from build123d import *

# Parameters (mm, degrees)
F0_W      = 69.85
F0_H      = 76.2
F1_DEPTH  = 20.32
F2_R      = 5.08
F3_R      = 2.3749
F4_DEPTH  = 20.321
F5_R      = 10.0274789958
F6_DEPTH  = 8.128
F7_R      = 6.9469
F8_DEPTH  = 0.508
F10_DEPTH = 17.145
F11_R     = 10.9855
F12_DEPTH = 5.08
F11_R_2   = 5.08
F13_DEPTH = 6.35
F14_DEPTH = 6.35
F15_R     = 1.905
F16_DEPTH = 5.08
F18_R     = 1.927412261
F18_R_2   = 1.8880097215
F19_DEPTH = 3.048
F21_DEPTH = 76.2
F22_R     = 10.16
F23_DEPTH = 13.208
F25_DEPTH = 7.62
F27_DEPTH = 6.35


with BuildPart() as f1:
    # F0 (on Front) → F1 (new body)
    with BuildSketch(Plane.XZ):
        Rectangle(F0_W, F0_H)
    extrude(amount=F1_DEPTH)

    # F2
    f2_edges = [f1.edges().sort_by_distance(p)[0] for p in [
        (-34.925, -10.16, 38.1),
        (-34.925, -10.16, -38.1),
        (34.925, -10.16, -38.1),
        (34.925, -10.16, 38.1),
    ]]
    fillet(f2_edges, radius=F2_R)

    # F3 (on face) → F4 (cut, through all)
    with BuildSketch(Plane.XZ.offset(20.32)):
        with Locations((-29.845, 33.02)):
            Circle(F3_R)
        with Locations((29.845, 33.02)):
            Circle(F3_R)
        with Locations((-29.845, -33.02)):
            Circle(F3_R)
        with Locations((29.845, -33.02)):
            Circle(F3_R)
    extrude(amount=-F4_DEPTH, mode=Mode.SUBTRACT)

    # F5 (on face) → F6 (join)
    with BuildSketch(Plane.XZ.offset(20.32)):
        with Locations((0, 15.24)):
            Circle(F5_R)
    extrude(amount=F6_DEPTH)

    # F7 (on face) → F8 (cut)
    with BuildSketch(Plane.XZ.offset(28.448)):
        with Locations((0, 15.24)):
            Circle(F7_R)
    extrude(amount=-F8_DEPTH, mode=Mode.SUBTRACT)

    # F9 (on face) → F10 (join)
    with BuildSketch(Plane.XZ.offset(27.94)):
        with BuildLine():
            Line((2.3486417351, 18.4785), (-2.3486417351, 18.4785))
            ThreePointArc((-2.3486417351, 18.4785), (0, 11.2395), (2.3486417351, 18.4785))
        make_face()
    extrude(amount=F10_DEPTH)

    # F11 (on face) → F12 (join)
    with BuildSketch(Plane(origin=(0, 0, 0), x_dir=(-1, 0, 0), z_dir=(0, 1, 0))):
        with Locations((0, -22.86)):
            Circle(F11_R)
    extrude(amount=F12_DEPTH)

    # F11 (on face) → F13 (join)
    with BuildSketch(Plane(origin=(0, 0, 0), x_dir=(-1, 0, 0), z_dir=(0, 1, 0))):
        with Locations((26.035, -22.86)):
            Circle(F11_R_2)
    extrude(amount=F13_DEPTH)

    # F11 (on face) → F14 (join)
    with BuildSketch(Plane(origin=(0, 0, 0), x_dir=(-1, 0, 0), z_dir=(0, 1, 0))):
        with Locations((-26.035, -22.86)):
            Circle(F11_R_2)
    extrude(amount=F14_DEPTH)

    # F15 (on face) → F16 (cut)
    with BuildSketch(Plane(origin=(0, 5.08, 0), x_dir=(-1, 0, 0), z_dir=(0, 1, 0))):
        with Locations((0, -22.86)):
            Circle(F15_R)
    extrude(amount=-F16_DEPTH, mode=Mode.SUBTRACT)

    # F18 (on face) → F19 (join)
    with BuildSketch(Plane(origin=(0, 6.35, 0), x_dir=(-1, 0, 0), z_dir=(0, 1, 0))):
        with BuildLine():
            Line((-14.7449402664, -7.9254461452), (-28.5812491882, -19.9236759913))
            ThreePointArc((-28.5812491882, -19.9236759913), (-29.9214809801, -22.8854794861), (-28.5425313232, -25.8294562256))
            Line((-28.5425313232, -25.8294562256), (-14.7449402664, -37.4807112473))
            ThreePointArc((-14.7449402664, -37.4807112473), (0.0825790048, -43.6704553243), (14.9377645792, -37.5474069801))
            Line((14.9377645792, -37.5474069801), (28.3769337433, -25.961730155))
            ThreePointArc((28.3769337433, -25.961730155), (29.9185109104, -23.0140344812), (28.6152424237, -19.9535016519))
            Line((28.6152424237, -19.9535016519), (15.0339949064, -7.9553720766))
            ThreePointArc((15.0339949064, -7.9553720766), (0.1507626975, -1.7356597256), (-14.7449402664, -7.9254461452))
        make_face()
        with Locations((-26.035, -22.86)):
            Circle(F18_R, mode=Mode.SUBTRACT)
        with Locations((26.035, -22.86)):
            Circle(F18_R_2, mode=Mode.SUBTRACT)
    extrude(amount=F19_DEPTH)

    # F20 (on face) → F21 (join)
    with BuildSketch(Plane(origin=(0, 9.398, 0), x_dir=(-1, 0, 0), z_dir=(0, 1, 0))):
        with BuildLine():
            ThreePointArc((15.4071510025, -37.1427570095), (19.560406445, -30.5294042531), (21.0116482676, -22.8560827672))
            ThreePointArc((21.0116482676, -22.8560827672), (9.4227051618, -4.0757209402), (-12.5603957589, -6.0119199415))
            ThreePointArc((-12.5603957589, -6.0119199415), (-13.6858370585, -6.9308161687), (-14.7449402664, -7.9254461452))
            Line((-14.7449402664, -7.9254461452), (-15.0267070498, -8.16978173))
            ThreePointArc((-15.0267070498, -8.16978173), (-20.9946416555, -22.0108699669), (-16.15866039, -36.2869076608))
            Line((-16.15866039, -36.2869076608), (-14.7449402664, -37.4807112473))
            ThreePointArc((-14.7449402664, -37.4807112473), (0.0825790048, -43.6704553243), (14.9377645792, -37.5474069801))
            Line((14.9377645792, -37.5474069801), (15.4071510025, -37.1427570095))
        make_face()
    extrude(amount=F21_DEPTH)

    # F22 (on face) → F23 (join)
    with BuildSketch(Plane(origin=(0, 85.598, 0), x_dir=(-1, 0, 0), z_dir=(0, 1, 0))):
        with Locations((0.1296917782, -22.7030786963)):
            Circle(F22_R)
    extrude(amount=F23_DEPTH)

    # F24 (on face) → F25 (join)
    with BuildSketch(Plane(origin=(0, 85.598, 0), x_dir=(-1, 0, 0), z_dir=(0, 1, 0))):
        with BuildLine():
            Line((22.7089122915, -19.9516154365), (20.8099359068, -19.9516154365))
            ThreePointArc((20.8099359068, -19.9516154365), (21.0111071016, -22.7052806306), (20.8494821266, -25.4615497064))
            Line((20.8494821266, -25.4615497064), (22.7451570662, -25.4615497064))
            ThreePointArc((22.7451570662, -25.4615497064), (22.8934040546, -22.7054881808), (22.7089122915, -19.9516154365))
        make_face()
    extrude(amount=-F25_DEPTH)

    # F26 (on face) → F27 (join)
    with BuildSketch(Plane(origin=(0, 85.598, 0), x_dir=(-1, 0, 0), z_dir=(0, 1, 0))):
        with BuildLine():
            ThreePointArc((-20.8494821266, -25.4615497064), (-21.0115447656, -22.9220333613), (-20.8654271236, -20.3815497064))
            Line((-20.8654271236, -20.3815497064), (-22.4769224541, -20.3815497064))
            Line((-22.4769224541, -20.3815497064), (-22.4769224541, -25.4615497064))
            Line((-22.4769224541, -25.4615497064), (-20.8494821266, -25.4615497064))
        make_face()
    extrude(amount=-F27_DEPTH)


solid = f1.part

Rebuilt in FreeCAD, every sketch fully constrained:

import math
import FreeCAD as App
import Part
import Sketcher
Q = App.Units.Quantity


def edges_at(feature, points):
    """Names of the edges that pass closest to the given points."""
    edges = feature.Shape.Edges
    near = lambda p: min(range(len(edges)), key=lambda i: edges[i].distToShape(Part.Vertex(*p))[0])
    return sorted({f"Edge{near(p) + 1}" for p in points})

doc = App.newDocument("Part")
body = doc.addObject("PartDesign::Body", "Body")

sketch1 = body.newObject("Sketcher::SketchObject", "Sketch")
sketch1.AttachmentSupport = (doc.getObject("XZ_Plane"), [""])
sketch1.MapMode = "FlatFace"
sketch1.addGeometry(Part.LineSegment(App.Vector(-35, 38, 0), App.Vector(-35, -38, 0)), False)
sketch1.addGeometry(Part.LineSegment(App.Vector(-35, -38, 0), App.Vector(35, -38, 0)), False)
sketch1.addGeometry(Part.LineSegment(App.Vector(35, -38, 0), App.Vector(35, 38, 0)), False)
sketch1.addGeometry(Part.LineSegment(App.Vector(35, 38, 0), App.Vector(-35, 38, 0)), False)
sketch1.addConstraint(Sketcher.Constraint("Coincident", 0, 2, 1, 1))
sketch1.addConstraint(Sketcher.Constraint("Coincident", 1, 2, 2, 1))
sketch1.addConstraint(Sketcher.Constraint("Coincident", 2, 2, 3, 1))
sketch1.addConstraint(Sketcher.Constraint("Coincident", 3, 2, 0, 1))
sketch1.addConstraint(Sketcher.Constraint("Vertical", 0))
sketch1.addConstraint(Sketcher.Constraint("Horizontal", 1))
sketch1.addConstraint(Sketcher.Constraint("Vertical", 2))
sketch1.addConstraint(Sketcher.Constraint("Horizontal", 3))
sketch1.addConstraint(Sketcher.Constraint("Symmetric", 0, 2, 2, 2, -1, 1))
sketch1.addConstraint(Sketcher.Constraint("DistanceY", 0, 2, 0, 1, Q("3 in")))
sketch1.addConstraint(Sketcher.Constraint("DistanceX", 1, 1, 1, 2, Q("2.75 in")))
pad1 = body.newObject("PartDesign::Pad", "Pad")
pad1.Profile = sketch1
pad1.Length = Q("0.8 in")
doc.recompute()

fillet = body.newObject("PartDesign::Fillet", "Fillet")
fillet.Base = (pad1, edges_at(pad1, [
    (-34.925, -10.16, 38.1),
    (-34.925, -10.16, -38.1),
    (34.925, -10.16, -38.1),
    (34.925, -10.16, 38.1),
]))
fillet.Radius = Q("0.2 in")

sketch2 = body.newObject("Sketcher::SketchObject", "Sketch001")
sketch2.AttachmentSupport = (doc.getObject("XZ_Plane"), [""])
sketch2.MapMode = "FlatFace"
sketch2.AttachmentOffset = App.Placement(App.Vector(0, 0, 0.8 * 25.4), App.Rotation())
sketch2.addGeometry(Part.Circle(App.Vector(-29.8, 33, 0), App.Vector(0, 0, 1), 2.4), False)
sketch2.addGeometry(Part.Circle(App.Vector(29.8, 33, 0), App.Vector(0, 0, 1), 2.4), False)
sketch2.addGeometry(Part.Circle(App.Vector(-29.8, -33, 0), App.Vector(0, 0, 1), 2.4), False)
sketch2.addGeometry(Part.Circle(App.Vector(29.8, -33, 0), App.Vector(0, 0, 1), 2.4), False)
sketch2.addConstraint(Sketcher.Constraint("Equal", 0, 1))
sketch2.addConstraint(Sketcher.Constraint("Equal", 1, 2))
sketch2.addConstraint(Sketcher.Constraint("Equal", 2, 3))
sketch2.addConstraint(Sketcher.Constraint("Symmetric", 1, 3, 2, 3, -1, 1))
sketch2.addConstraint(Sketcher.Constraint("Symmetric", 0, 3, 3, 3, -1, 1))
sketch2.addConstraint(Sketcher.Constraint("Symmetric", 0, 3, 1, 3, -2))
sketch2.addConstraint(Sketcher.Constraint("Diameter", 0, Q("0.187 in")))
sketch2.addConstraint(Sketcher.Constraint("DistanceY", -1, 1, 0, 3, Q("1.3 in")))
sketch2.addConstraint(Sketcher.Constraint("DistanceX", 0, 3, 1, 3, Q("2.35 in")))
pocket1 = body.newObject("PartDesign::Pocket", "Pocket")
pocket1.Profile = sketch2
pocket1.Type = "ThroughAll"

sketch3 = body.newObject("Sketcher::SketchObject", "Sketch002")
sketch3.AttachmentSupport = (doc.getObject("XZ_Plane"), [""])
sketch3.MapMode = "FlatFace"
sketch3.AttachmentOffset = App.Placement(App.Vector(0, 0, 0.8 * 25.4), App.Rotation())
sketch3.addGeometry(Part.Circle(App.Vector(0, 15, 0), App.Vector(0, 0, 1), 10), False)
sketch3.addConstraint(Sketcher.Constraint("PointOnObject", 0, 3, -2))
sketch3.addConstraint(Sketcher.Constraint("DistanceY", -1, 1, 0, 3, Q("0.6 in")))
sketch3.addConstraint(Sketcher.Constraint("Diameter", 0, 20.054958))
pad2 = body.newObject("PartDesign::Pad", "Pad001")
pad2.Profile = sketch3
pad2.Length = Q("0.32 in")

sketch4 = body.newObject("Sketcher::SketchObject", "Sketch003")
sketch4.AttachmentSupport = (doc.getObject("XZ_Plane"), [""])
sketch4.MapMode = "FlatFace"
sketch4.AttachmentOffset = App.Placement(App.Vector(0, 0, 1.12 * 25.4), App.Rotation())
sketch4.addGeometry(Part.Circle(App.Vector(0, 15, 0), App.Vector(0, 0, 1), 7), False)
sketch4.addConstraint(Sketcher.Constraint("PointOnObject", 0, 3, -2))
sketch4.addConstraint(Sketcher.Constraint("Diameter", 0, Q("0.547 in")))
sketch4.addConstraint(Sketcher.Constraint("DistanceY", -1, 1, 0, 3, Q("0.6 in")))
pocket2 = body.newObject("PartDesign::Pocket", "Pocket001")
pocket2.Profile = sketch4
pocket2.Length = Q("0.02 in")

sketch5 = body.newObject("Sketcher::SketchObject", "Sketch004")
sketch5.AttachmentSupport = (doc.getObject("XZ_Plane"), [""])
sketch5.MapMode = "FlatFace"
sketch5.AttachmentOffset = App.Placement(App.Vector(0, 0, 1.1 * 25.4), App.Rotation())
sketch5.addGeometry(Part.LineSegment(App.Vector(2.3, 18.5, 0), App.Vector(-2.3, 18.5, 0)), False)
sketch5.addGeometry(Part.ArcOfCircle(Part.Circle(App.Vector(0, 15.2, 0), App.Vector(0, 0, 1), 4), math.radians(126), math.radians(414)), False)
sketch5.addConstraint(Sketcher.Constraint("Coincident", 0, 1, 1, 2))
sketch5.addConstraint(Sketcher.Constraint("Coincident", 1, 1, 0, 2))
sketch5.addConstraint(Sketcher.Constraint("Horizontal", 0))
sketch5.addConstraint(Sketcher.Constraint("PointOnObject", 1, 3, -2))
sketch5.addConstraint(Sketcher.Constraint("DistanceY", -1, 1, 1, 3, Q("0.6 in")))
sketch5.addConstraint(Sketcher.Constraint("Radius", 1, Q("0.1575 in")))
sketch5.addConstraint(Sketcher.Constraint("DistanceY", -1, 1, 0, 1, Q("0.7275 in")))
pad3 = body.newObject("PartDesign::Pad", "Pad002")
pad3.Profile = sketch5
pad3.Length = Q("0.675 in")

sketch6 = body.newObject("Sketcher::SketchObject", "Sketch005")
sketch6.AttachmentSupport = (doc.getObject("XZ_Plane"), [""])
sketch6.MapMode = "FlatFace"
sketch6.addGeometry(Part.Circle(App.Vector(0, -23, 0), App.Vector(0, 0, 1), 11), False)
sketch6.addConstraint(Sketcher.Constraint("PointOnObject", 0, 3, -2))
sketch6.addConstraint(Sketcher.Constraint("Diameter", 0, Q("0.865 in")))
sketch6.addConstraint(Sketcher.Constraint("DistanceY", 0, 3, -1, 1, Q("0.9 in")))
pad4 = body.newObject("PartDesign::Pad", "Pad003")
pad4.Profile = sketch6
pad4.Length = Q("0.2 in")
pad4.Reversed = True

sketch7 = body.newObject("Sketcher::SketchObject", "Sketch006")
sketch7.AttachmentSupport = (doc.getObject("XZ_Plane"), [""])
sketch7.MapMode = "FlatFace"
sketch7.addGeometry(Part.Circle(App.Vector(-26, -23, 0), App.Vector(0, 0, 1), 5), False)
sketch7.addConstraint(Sketcher.Constraint("Diameter", 0, Q("0.4 in")))
sketch7.addConstraint(Sketcher.Constraint("DistanceY", 0, 3, -1, 1, Q("0.9 in")))
sketch7.addConstraint(Sketcher.Constraint("DistanceX", 0, 3, -1, 1, Q("1.025 in")))
pad5 = body.newObject("PartDesign::Pad", "Pad004")
pad5.Profile = sketch7
pad5.Length = Q("0.25 in")
pad5.Reversed = True

sketch8 = body.newObject("Sketcher::SketchObject", "Sketch007")
sketch8.AttachmentSupport = (doc.getObject("XZ_Plane"), [""])
sketch8.MapMode = "FlatFace"
sketch8.addGeometry(Part.Circle(App.Vector(26, -23, 0), App.Vector(0, 0, 1), 5), False)
sketch8.addConstraint(Sketcher.Constraint("Diameter", 0, Q("0.4 in")))
sketch8.addConstraint(Sketcher.Constraint("DistanceY", 0, 3, -1, 1, Q("0.9 in")))
sketch8.addConstraint(Sketcher.Constraint("DistanceX", -1, 1, 0, 3, Q("1.025 in")))
pad6 = body.newObject("PartDesign::Pad", "Pad005")
pad6.Profile = sketch8
pad6.Length = Q("0.25 in")
pad6.Reversed = True

sketch9 = body.newObject("Sketcher::SketchObject", "Sketch008")
sketch9.AttachmentSupport = (doc.getObject("XZ_Plane"), [""])
sketch9.MapMode = "FlatFace"
sketch9.AttachmentOffset = App.Placement(App.Vector(0, 0, -0.2 * 25.4), App.Rotation())
sketch9.addGeometry(Part.Circle(App.Vector(0, -22.9, 0), App.Vector(0, 0, 1), 1.9), False)
sketch9.addConstraint(Sketcher.Constraint("PointOnObject", 0, 3, -2))
sketch9.addConstraint(Sketcher.Constraint("Diameter", 0, Q("0.15 in")))
sketch9.addConstraint(Sketcher.Constraint("DistanceY", 0, 3, -1, 1, Q("0.9 in")))
pocket3 = body.newObject("PartDesign::Pocket", "Pocket002")
pocket3.Profile = sketch9
pocket3.Length = Q("0.2 in")
pocket3.Reversed = True

sketch10 = body.newObject("Sketcher::SketchObject", "Sketch009")
sketch10.AttachmentSupport = (doc.getObject("XZ_Plane"), [""])
sketch10.MapMode = "FlatFace"
sketch10.AttachmentOffset = App.Placement(App.Vector(0, 0, -0.25 * 25.4), App.Rotation())
sketch10.addGeometry(Part.LineSegment(App.Vector(14.7, -7.9, 0), App.Vector(28.6, -19.9, 0)), False)
sketch10.addGeometry(Part.ArcOfCircle(Part.Circle(App.Vector(26, -22.9, 0), App.Vector(0, 0, 1), 3.9), math.radians(-50), math.radians(49)), False)
sketch10.addGeometry(Part.LineSegment(App.Vector(28.5, -25.8, 0), App.Vector(14.7, -37.5, 0)), False)
sketch10.addGeometry(Part.ArcOfCircle(Part.Circle(App.Vector(-0.1, -22.7, 0), App.Vector(0, 0, 1), 21), math.radians(-135), math.radians(-45)), False)
sketch10.addGeometry(Part.LineSegment(App.Vector(-14.9, -37.5, 0), App.Vector(-28.4, -26, 0)), False)
sketch10.addGeometry(Part.ArcOfCircle(Part.Circle(App.Vector(-26, -22.9, 0), App.Vector(0, 0, 1), 3.9), math.radians(132), math.radians(233)), False)
sketch10.addGeometry(Part.LineSegment(App.Vector(-28.6, -20, 0), App.Vector(-15, -8, 0)), False)
sketch10.addGeometry(Part.ArcOfCircle(Part.Circle(App.Vector(-0.1, -22.7, 0), App.Vector(0, 0, 1), 21), math.radians(45), math.radians(135)), False)
sketch10.addGeometry(Part.Circle(App.Vector(26, -22.9, 0), App.Vector(0, 0, 1), 1.9), False)
sketch10.addGeometry(Part.Circle(App.Vector(-26, -22.9, 0), App.Vector(0, 0, 1), 1.9), False)
sketch10.addConstraint(Sketcher.Constraint("Tangent", 0, 2, 1, 2))
sketch10.addConstraint(Sketcher.Constraint("Tangent", 1, 1, 2, 1))
sketch10.addConstraint(Sketcher.Constraint("Coincident", 2, 2, 3, 2))
sketch10.addConstraint(Sketcher.Constraint("Coincident", 3, 1, 4, 1))
sketch10.addConstraint(Sketcher.Constraint("Coincident", 4, 2, 5, 2))
sketch10.addConstraint(Sketcher.Constraint("Coincident", 5, 1, 6, 1))
sketch10.addConstraint(Sketcher.Constraint("Coincident", 6, 2, 7, 2))
sketch10.addConstraint(Sketcher.Constraint("Coincident", 7, 1, 0, 1))
sketch10.addConstraint(Sketcher.Constraint("Coincident", 7, 3, 3, 3))
sketch10.addConstraint(Sketcher.Constraint("Coincident", 8, 3, 1, 3))
sketch10.addConstraint(Sketcher.Constraint("Coincident", 9, 3, 5, 3))
sketch10.addConstraint(Sketcher.Constraint("Equal", 1, 5))
sketch10.addConstraint(Sketcher.Constraint("Equal", 3, 7))
sketch10.addConstraint(Sketcher.Constraint("Symmetric", 1, 3, 5, 3, -2))
sketch10.addConstraint(Sketcher.Constraint("Vertical", 2, 2, 7, 1))
sketch10.addConstraint(Sketcher.Constraint("DistanceY", 1, 3, -1, 1, Q("0.9 in")))
sketch10.addConstraint(Sketcher.Constraint("DistanceX", 5, 3, 1, 3, Q("2.05 in")))
sketch10.addConstraint(Sketcher.Constraint("Diameter", 9, 3.776019))
sketch10.addConstraint(Sketcher.Constraint("Radius", 3, 20.96743))
sketch10.addConstraint(Sketcher.Constraint("Diameter", 8, 3.854825))
sketch10.addConstraint(Sketcher.Constraint("Radius", 1, 3.886564))
sketch10.addConstraint(Sketcher.Constraint("DistanceY", 5, 1, -1, 1, 19.953502))
sketch10.addConstraint(Sketcher.Constraint("Distance", 2, 18.058939))
sketch10.addConstraint(Sketcher.Constraint("Distance", 4, 17.743708))
sketch10.addConstraint(Sketcher.Constraint("Distance", 6, 18.121959))
sketch10.addConstraint(Sketcher.Constraint("DistanceX", 3, 3, -1, 1, 0.129692))
sketch10.addConstraint(Sketcher.Constraint("DistanceY", 3, 3, -1, 1, 22.703079))
sketch10.addConstraint(Sketcher.Constraint("DistanceY", 4, 2, -1, 1, 25.96173))
pad7 = body.newObject("PartDesign::Pad", "Pad006")
pad7.Profile = sketch10
pad7.Length = Q("0.12 in")
pad7.Reversed = True

sketch11 = body.newObject("Sketcher::SketchObject", "Sketch010")
sketch11.AttachmentSupport = (doc.getObject("XZ_Plane"), [""])
sketch11.MapMode = "FlatFace"
sketch11.AttachmentOffset = App.Placement(App.Vector(0, 0, -0.37 * 25.4), App.Rotation())
sketch11.addGeometry(Part.ArcOfCircle(Part.Circle(App.Vector(0, -22.86, 0), App.Vector(0, 0, 1), 21.01), math.radians(180), math.radians(223)), False)
sketch11.addGeometry(Part.ArcOfCircle(Part.Circle(App.Vector(0, -22.86, 0), App.Vector(0, 0, 1), 21.01), math.radians(53), math.radians(180)), False)
sketch11.addGeometry(Part.ArcOfCircle(Part.Circle(App.Vector(-0.13, -22.7, 0), App.Vector(0, 0, 1), 20.97), math.radians(44.81), math.radians(52.75)), False)
sketch11.addGeometry(Part.LineSegment(App.Vector(14.74, -7.93, 0), App.Vector(15.03, -8.17, 0)), False)
sketch11.addGeometry(Part.ArcOfCircle(Part.Circle(App.Vector(0, -22.86, 0), App.Vector(0, 0, 1), 21.01), math.radians(-40), math.radians(44)), False)
sketch11.addGeometry(Part.LineSegment(App.Vector(16.16, -36.29, 0), App.Vector(14.74, -37.48, 0)), False)
sketch11.addGeometry(Part.ArcOfCircle(Part.Circle(App.Vector(-0.13, -22.7, 0), App.Vector(0, 0, 1), 20.97), math.radians(-135), math.radians(-45)), False)
sketch11.addGeometry(Part.LineSegment(App.Vector(-14.94, -37.55, 0), App.Vector(-15.41, -37.14, 0)), False)
sketch11.addConstraint(Sketcher.Constraint("Tangent", 0, 1, 1, 2))
sketch11.addConstraint(Sketcher.Constraint("Coincident", 1, 1, 2, 2))
sketch11.addConstraint(Sketcher.Constraint("Coincident", 2, 1, 3, 1))
sketch11.addConstraint(Sketcher.Constraint("Coincident", 3, 2, 4, 2))
sketch11.addConstraint(Sketcher.Constraint("Coincident", 4, 1, 5, 1))
sketch11.addConstraint(Sketcher.Constraint("Coincident", 5, 2, 6, 2))
sketch11.addConstraint(Sketcher.Constraint("Coincident", 6, 1, 7, 1))
sketch11.addConstraint(Sketcher.Constraint("Coincident", 7, 2, 0, 2))
sketch11.addConstraint(Sketcher.Constraint("Coincident", 4, 3, 0, 3))
sketch11.addConstraint(Sketcher.Constraint("Coincident", 6, 3, 2, 3))
sketch11.addConstraint(Sketcher.Constraint("Equal", 0, 1))
sketch11.addConstraint(Sketcher.Constraint("Equal", 1, 4))
sketch11.addConstraint(Sketcher.Constraint("Equal", 2, 6))
sketch11.addConstraint(Sketcher.Constraint("PointOnObject", 0, 3, -2))
sketch11.addConstraint(Sketcher.Constraint("Horizontal", 4, 3, 0, 1))
sketch11.addConstraint(Sketcher.Constraint("Vertical", 2, 1, 5, 2))
sketch11.addConstraint(Sketcher.Constraint("Radius", 0, 21.011648))
sketch11.addConstraint(Sketcher.Constraint("Radius", 2, 20.96743))
sketch11.addConstraint(Sketcher.Constraint("DistanceY", 5, 2, 4, 1, Q("0.0470001 in")))
sketch11.addConstraint(Sketcher.Constraint("DistanceX", 6, 3, 3, 2, 15.156399))
sketch11.addConstraint(Sketcher.Constraint("DistanceY", 0, 3, 3, 2, 14.686301))
sketch11.addConstraint(Sketcher.Constraint("Distance", 3, 0.372951))
sketch11.addConstraint(Sketcher.Constraint("Distance", 7, 0.61973))
sketch11.addConstraint(Sketcher.Constraint("DistanceY", 2, 3, -1, 1, 22.703079))
sketch11.addConstraint(Sketcher.Constraint("DistanceY", 1, 1, -1, 1, 6.01192))
sketch11.addConstraint(Sketcher.Constraint("DistanceX", 7, 2, -1, 1, 15.407151))
pad8 = body.newObject("PartDesign::Pad", "Pad007")
pad8.Profile = sketch11
pad8.Length = Q("3 in")
pad8.Reversed = True

sketch12 = body.newObject("Sketcher::SketchObject", "Sketch011")
sketch12.AttachmentSupport = (doc.getObject("XZ_Plane"), [""])
sketch12.MapMode = "FlatFace"
sketch12.AttachmentOffset = App.Placement(App.Vector(0, 0, -3.37 * 25.4), App.Rotation())
sketch12.addGeometry(Part.Circle(App.Vector(0, -23, 0), App.Vector(0, 0, 1), 10), False)
sketch12.addConstraint(Sketcher.Constraint("Diameter", 0, Q("0.8 in")))
sketch12.addConstraint(Sketcher.Constraint("DistanceX", 0, 3, -1, 1, 0.129692))
sketch12.addConstraint(Sketcher.Constraint("DistanceY", 0, 3, -1, 1, 22.703079))
pad9 = body.newObject("PartDesign::Pad", "Pad008")
pad9.Profile = sketch12
pad9.Length = Q("0.52 in")
pad9.Reversed = True

sketch13 = body.newObject("Sketcher::SketchObject", "Sketch012")
sketch13.AttachmentSupport = (doc.getObject("XZ_Plane"), [""])
sketch13.MapMode = "FlatFace"
sketch13.AttachmentOffset = App.Placement(App.Vector(0, 0, -3.37 * 25.4), App.Rotation())
sketch13.addGeometry(Part.LineSegment(App.Vector(-22.7, -20, 0), App.Vector(-20.8, -20, 0)), False)
sketch13.addGeometry(Part.ArcOfCircle(Part.Circle(App.Vector(0, -22.9, 0), App.Vector(0, 0, 1), 21), math.radians(172.05), math.radians(187.12)), False)
sketch13.addGeometry(Part.LineSegment(App.Vector(-20.8, -25.5, 0), App.Vector(-22.7, -25.5, 0)), False)
sketch13.addGeometry(Part.ArcOfCircle(Part.Circle(App.Vector(0, -22.9, 0), App.Vector(0, 0, 1), 22.9), math.radians(172.71), math.radians(186.53)), False)
sketch13.addConstraint(Sketcher.Constraint("Coincident", 0, 2, 1, 1))
sketch13.addConstraint(Sketcher.Constraint("Coincident", 1, 2, 2, 1))
sketch13.addConstraint(Sketcher.Constraint("Coincident", 2, 2, 3, 2))
sketch13.addConstraint(Sketcher.Constraint("Coincident", 3, 1, 0, 1))
sketch13.addConstraint(Sketcher.Constraint("Horizontal", 0))
sketch13.addConstraint(Sketcher.Constraint("Horizontal", 2))
sketch13.addConstraint(Sketcher.Constraint("Coincident", 3, 3, 1, 3))
sketch13.addConstraint(Sketcher.Constraint("PointOnObject", 1, 3, -2))
sketch13.addConstraint(Sketcher.Constraint("Radius", 3, 22.893899))
sketch13.addConstraint(Sketcher.Constraint("Radius", 1, 21.011648))
sketch13.addConstraint(Sketcher.Constraint("DistanceX", 0, 1, 0, 2, 1.898976))
sketch13.addConstraint(Sketcher.Constraint("DistanceX", 2, 2, 2, 1, 1.895675))
sketch13.addConstraint(Sketcher.Constraint("DistanceY", 1, 2, -1, 1, 25.46155))
pad10 = body.newObject("PartDesign::Pad", "Pad009")
pad10.Profile = sketch13
pad10.Length = Q("0.3 in")

sketch14 = body.newObject("Sketcher::SketchObject", "Sketch013")
sketch14.AttachmentSupport = (doc.getObject("XZ_Plane"), [""])
sketch14.MapMode = "FlatFace"
sketch14.AttachmentOffset = App.Placement(App.Vector(0, 0, -3.37 * 25.4), App.Rotation())
sketch14.addGeometry(Part.ArcOfCircle(Part.Circle(App.Vector(0, -22.9, 0), App.Vector(0, 0, 1), 21), math.radians(-7.12), math.radians(6.76)), False)
sketch14.addGeometry(Part.LineSegment(App.Vector(20.9, -20.4, 0), App.Vector(22.5, -20.4, 0)), False)
sketch14.addGeometry(Part.LineSegment(App.Vector(22.5, -20.4, 0), App.Vector(22.5, -25.5, 0)), False)
sketch14.addGeometry(Part.LineSegment(App.Vector(22.5, -25.5, 0), App.Vector(20.8, -25.5, 0)), False)
sketch14.addConstraint(Sketcher.Constraint("Coincident", 0, 2, 1, 1))
sketch14.addConstraint(Sketcher.Constraint("Coincident", 1, 2, 2, 1))
sketch14.addConstraint(Sketcher.Constraint("Coincident", 2, 2, 3, 1))
sketch14.addConstraint(Sketcher.Constraint("Coincident", 3, 2, 0, 1))
sketch14.addConstraint(Sketcher.Constraint("Horizontal", 1))
sketch14.addConstraint(Sketcher.Constraint("Vertical", 2))
sketch14.addConstraint(Sketcher.Constraint("Horizontal", 3))
sketch14.addConstraint(Sketcher.Constraint("PointOnObject", 0, 3, -2))
sketch14.addConstraint(Sketcher.Constraint("DistanceY", 2, 2, 2, 1, Q("0.2 in")))
sketch14.addConstraint(Sketcher.Constraint("Radius", 0, 21.011648))
sketch14.addConstraint(Sketcher.Constraint("DistanceX", 3, 2, 3, 1, 1.62744))
sketch14.addConstraint(Sketcher.Constraint("DistanceX", 1, 1, 1, 2, 1.611495))
sketch14.addConstraint(Sketcher.Constraint("DistanceY", 0, 2, -1, 1, 20.38155))
pad11 = body.newObject("PartDesign::Pad", "Pad010")
pad11.Profile = sketch14
pad11.Length = Q("0.25 in")

doc.recompute()
